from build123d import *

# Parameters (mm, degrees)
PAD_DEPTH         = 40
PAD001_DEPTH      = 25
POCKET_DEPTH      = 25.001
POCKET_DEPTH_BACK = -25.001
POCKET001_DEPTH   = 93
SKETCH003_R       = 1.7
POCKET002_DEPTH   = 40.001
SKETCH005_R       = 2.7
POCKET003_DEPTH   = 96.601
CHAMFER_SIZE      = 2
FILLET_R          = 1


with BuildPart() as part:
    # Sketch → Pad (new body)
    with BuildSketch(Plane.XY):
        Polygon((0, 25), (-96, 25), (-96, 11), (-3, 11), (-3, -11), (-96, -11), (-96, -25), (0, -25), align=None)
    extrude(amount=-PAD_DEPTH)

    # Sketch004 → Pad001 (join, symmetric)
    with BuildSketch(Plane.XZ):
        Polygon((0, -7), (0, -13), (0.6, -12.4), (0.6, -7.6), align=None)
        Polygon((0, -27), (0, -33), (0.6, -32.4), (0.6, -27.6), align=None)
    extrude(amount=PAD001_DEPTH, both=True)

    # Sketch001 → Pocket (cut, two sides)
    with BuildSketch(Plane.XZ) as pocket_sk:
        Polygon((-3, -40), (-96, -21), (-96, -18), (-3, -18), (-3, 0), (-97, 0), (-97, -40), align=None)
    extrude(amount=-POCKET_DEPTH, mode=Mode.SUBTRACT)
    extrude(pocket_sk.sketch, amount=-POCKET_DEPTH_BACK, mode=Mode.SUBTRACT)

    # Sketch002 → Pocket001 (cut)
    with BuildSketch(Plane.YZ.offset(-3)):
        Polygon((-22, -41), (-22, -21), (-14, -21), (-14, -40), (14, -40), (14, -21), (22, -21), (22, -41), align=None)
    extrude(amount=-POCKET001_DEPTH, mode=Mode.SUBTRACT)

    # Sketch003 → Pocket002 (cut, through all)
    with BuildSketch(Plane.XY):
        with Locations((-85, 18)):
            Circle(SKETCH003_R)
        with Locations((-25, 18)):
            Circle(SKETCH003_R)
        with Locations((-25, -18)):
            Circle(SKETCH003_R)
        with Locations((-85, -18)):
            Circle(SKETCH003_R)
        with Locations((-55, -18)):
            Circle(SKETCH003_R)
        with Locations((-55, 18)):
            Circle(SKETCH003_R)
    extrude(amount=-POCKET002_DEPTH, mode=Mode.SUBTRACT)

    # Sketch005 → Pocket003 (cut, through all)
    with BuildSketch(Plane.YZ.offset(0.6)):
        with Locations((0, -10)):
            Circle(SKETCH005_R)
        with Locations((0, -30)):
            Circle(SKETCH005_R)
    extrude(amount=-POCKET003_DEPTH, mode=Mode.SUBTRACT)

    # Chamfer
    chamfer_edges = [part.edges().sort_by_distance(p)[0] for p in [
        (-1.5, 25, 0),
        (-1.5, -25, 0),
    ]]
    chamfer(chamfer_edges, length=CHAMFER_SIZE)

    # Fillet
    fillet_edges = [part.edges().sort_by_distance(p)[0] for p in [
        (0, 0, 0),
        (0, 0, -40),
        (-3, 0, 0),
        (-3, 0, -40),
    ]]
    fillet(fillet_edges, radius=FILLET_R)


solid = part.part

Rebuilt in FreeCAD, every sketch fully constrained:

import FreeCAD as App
import Part
import Sketcher

V = App.Vector
Q = App.Units.Quantity


def edges_at(feature, points):
    """Names of the edges that pass closest to the given points."""
    edges = feature.Shape.Edges
    near = lambda p: min(range(len(edges)), key=lambda i: edges[i].distToShape(Part.Vertex(*p))[0])
    return sorted({f"Edge{near(p) + 1}" for p in points})

doc = App.newDocument("Part")
body = doc.addObject("PartDesign::Body", "Body")

# Sketch on XY plane
sketch1 = body.newObject("Sketcher::SketchObject", "Sketch")
sketch1.AttachmentSupport = (doc.getObject("XY_Plane"), [""])
sketch1.MapMode = "FlatFace"
sketch1.addGeometry(Part.LineSegment(V(0, 25, 0), V(-96, 25, 0)), False)
sketch1.addGeometry(Part.LineSegment(V(-96, 25, 0), V(-96, 11, 0)), False)
sketch1.addGeometry(Part.LineSegment(V(-96, 11, 0), V(-3, 11, 0)), False)
sketch1.addGeometry(Part.LineSegment(V(-3, 11, 0), V(-3, -11, 0)), False)
sketch1.addGeometry(Part.LineSegment(V(-3, -11, 0), V(-96, -11, 0)), False)
sketch1.addGeometry(Part.LineSegment(V(-96, -11, 0), V(-96, -25, 0)), False)
sketch1.addGeometry(Part.LineSegment(V(-96, -25, 0), V(0, -25, 0)), False)
sketch1.addGeometry(Part.LineSegment(V(0, -25, 0), V(0, 25, 0)), False)
sketch1.addConstraint(Sketcher.Constraint("Coincident", 0, 2, 1, 1))
sketch1.addConstraint(Sketcher.Constraint("Coincident", 1, 2, 2, 1))
sketch1.addConstraint(Sketcher.Constraint("Coincident", 2, 2, 3, 1))
sketch1.addConstraint(Sketcher.Constraint("Coincident", 3, 2, 4, 1))
sketch1.addConstraint(Sketcher.Constraint("Coincident", 4, 2, 5, 1))
sketch1.addConstraint(Sketcher.Constraint("Coincident", 5, 2, 6, 1))
sketch1.addConstraint(Sketcher.Constraint("Coincident", 6, 2, 7, 1))
sketch1.addConstraint(Sketcher.Constraint("Coincident", 7, 2, 0, 1))
sketch1.addConstraint(Sketcher.Constraint("Horizontal", 0))
sketch1.addConstraint(Sketcher.Constraint("Vertical", 1))
sketch1.addConstraint(Sketcher.Constraint("Horizontal", 2))
sketch1.addConstraint(Sketcher.Constraint("Vertical", 3))
sketch1.addConstraint(Sketcher.Constraint("Horizontal", 4))
sketch1.addConstraint(Sketcher.Constraint("Vertical", 5))
sketch1.addConstraint(Sketcher.Constraint("Horizontal", 6))
sketch1.addConstraint(Sketcher.Constraint("Vertical", 7))
sketch1.addConstraint(Sketcher.Constraint("Symmetric", 6, 2, 7, 2, -1, 1))
sketch1.addConstraint(Sketcher.Constraint("Symmetric", 1, 2, 4, 2, -1))
sketch1.addConstraint(Sketcher.Constraint("DistanceX", 0, 2, 0, 1, Q("96 mm")))
sketch1.addConstraint(Sketcher.Constraint("DistanceX", 2, 1, 2, 2, Q("93 mm")))
sketch1.addConstraint(Sketcher.Constraint("DistanceY", 1, 2, 1, 1, Q("14 mm")))
sketch1.addConstraint(Sketcher.Constraint("DistanceY", 3, 2, 3, 1, Q("22 mm")))
pad1 = body.newObject("PartDesign::Pad", "Pad")
pad1.Profile = sketch1
pad1.Length = 40
pad1.Reversed = True

# Sketch on XZ plane
sketch2 = body.newObject("Sketcher::SketchObject", "Sketch001")
sketch2.AttachmentSupport = (doc.getObject("XZ_Plane"), [""])
sketch2.MapMode = "FlatFace"
sketch2.addGeometry(Part.LineSegment(V(0, -7, 0), V(0, -13, 0)), False)
sketch2.addGeometry(Part.LineSegment(V(0, -13, 0), V(0.6, -12.4, 0)), False)
sketch2.addGeometry(Part.LineSegment(V(0.6, -12.4, 0), V(0.6, -7.6, 0)), False)
sketch2.addGeometry(Part.LineSegment(V(0.6, -7.6, 0), V(0, -7, 0)), False)
sketch2.addGeometry(Part.LineSegment(V(0, -27, 0), V(0, -33, 0)), False)
sketch2.addGeometry(Part.LineSegment(V(0, -33, 0), V(0.6, -32.4, 0)), False)
sketch2.addGeometry(Part.LineSegment(V(0.6, -32.4, 0), V(0.6, -27.6, 0)), False)
sketch2.addGeometry(Part.LineSegment(V(0.6, -27.6, 0), V(0, -27, 0)), False)
sketch2.addConstraint(Sketcher.Constraint("Coincident", 0, 2, 1, 1))
sketch2.addConstraint(Sketcher.Constraint("Coincident", 1, 2, 2, 1))
sketch2.addConstraint(Sketcher.Constraint("Coincident", 2, 2, 3, 1))
sketch2.addConstraint(Sketcher.Constraint("Coincident", 3, 2, 0, 1))
sketch2.addConstraint(Sketcher.Constraint("Coincident", 4, 2, 5, 1))
sketch2.addConstraint(Sketcher.Constraint("Coincident", 5, 2, 6, 1))
sketch2.addConstraint(Sketcher.Constraint("Coincident", 6, 2, 7, 1))
sketch2.addConstraint(Sketcher.Constraint("Coincident", 7, 2, 4, 1))
sketch2.addConstraint(Sketcher.Constraint("Vertical", 0))
sketch2.addConstraint(Sketcher.Constraint("Vertical", 2))
sketch2.addConstraint(Sketcher.Constraint("Vertical", 4))
sketch2.addConstraint(Sketcher.Constraint("Vertical", 6))
sketch2.addConstraint(Sketcher.Constraint("PointOnObject", 0, 2, -2))
sketch2.addConstraint(Sketcher.Constraint("PointOnObject", 4, 2, -2))
sketch2.addConstraint(Sketcher.Constraint("Perpendicular", 1, 3))
sketch2.addConstraint(Sketcher.Constraint("Perpendicular", 3, 5))
sketch2.addConstraint(Sketcher.Constraint("Perpendicular", 5, 7))
sketch2.addConstraint(Sketcher.Constraint("Vertical", 2, 2, 5, 2))
sketch2.addConstraint(Sketcher.Constraint("Equal", 0, 4))
sketch2.addConstraint(Sketcher.Constraint("Equal", 1, 3))
sketch2.addConstraint(Sketcher.Constraint("DistanceY", 0, 2, 0, 1, Q("6 mm")))
sketch2.addConstraint(Sketcher.Constraint("DistanceY", 2, 1, 2, 2, Q("4.8 mm")))
sketch2.addConstraint(Sketcher.Constraint("DistanceY", 0, 2, -1, 1, Q("13 mm")))
sketch2.addConstraint(Sketcher.Constraint("DistanceY", 4, 2, -1, 1, Q("33 mm")))
pad2 = body.newObject("PartDesign::Pad", "Pad001")
pad2.Profile = sketch2
pad2.Length = 50
pad2.Midplane = True

# Sketch on XZ plane
sketch3 = body.newObject("Sketcher::SketchObject", "Sketch002")
sketch3.AttachmentSupport = (doc.getObject("XZ_Plane"), [""])
sketch3.MapMode = "FlatFace"
sketch3.addGeometry(Part.LineSegment(V(-3, -40, 0), V(-96, -21, 0)), False)
sketch3.addGeometry(Part.LineSegment(V(-96, -21, 0), V(-96, -18, 0)), False)
sketch3.addGeometry(Part.LineSegment(V(-96, -18, 0), V(-3, -18, 0)), False)
sketch3.addGeometry(Part.LineSegment(V(-3, -18, 0), V(-3, 0, 0)), False)
sketch3.addGeometry(Part.LineSegment(V(-3, 0, 0), V(-97, 0, 0)), False)
sketch3.addGeometry(Part.LineSegment(V(-97, 0, 0), V(-97, -40, 0)), False)
sketch3.addGeometry(Part.LineSegment(V(-97, -40, 0), V(-3, -40, 0)), False)
sketch3.addConstraint(Sketcher.Constraint("Coincident", 0, 2, 1, 1))
sketch3.addConstraint(Sketcher.Constraint("Coincident", 1, 2, 2, 1))
sketch3.addConstraint(Sketcher.Constraint("Coincident", 2, 2, 3, 1))
sketch3.addConstraint(Sketcher.Constraint("Coincident", 3, 2, 4, 1))
sketch3.addConstraint(Sketcher.Constraint("Coincident", 4, 2, 5, 1))
sketch3.addConstraint(Sketcher.Constraint("Coincident", 5, 2, 6, 1))
sketch3.addConstraint(Sketcher.Constraint("Coincident", 6, 2, 0, 1))
sketch3.addConstraint(Sketcher.Constraint("Vertical", 1))
sketch3.addConstraint(Sketcher.Constraint("Horizontal", 2))
sketch3.addConstraint(Sketcher.Constraint("Vertical", 3))
sketch3.addConstraint(Sketcher.Constraint("Horizontal", 4))
sketch3.addConstraint(Sketcher.Constraint("Vertical", 5))
sketch3.addConstraint(Sketcher.Constraint("Horizontal", 6))
sketch3.addConstraint(Sketcher.Constraint("PointOnObject", 3, 2, -1))
sketch3.addConstraint(Sketcher.Constraint("Vertical", 3, 2, 6, 2))
sketch3.addConstraint(Sketcher.Constraint("DistanceX", 2, 1, 2, 2, Q("93 mm")))
sketch3.addConstraint(Sketcher.Constraint("DistanceX", 4, 2, 4, 1, Q("94 mm")))
sketch3.addConstraint(Sketcher.Constraint("DistanceY", 1, 1, 1, 2, Q("3 mm")))
sketch3.addConstraint(Sketcher.Constraint("DistanceY", 3, 1, 3, 2, Q("18 mm")))
sketch3.addConstraint(Sketcher.Constraint("DistanceY", 5, 2, 5, 1, Q("40 mm")))
sketch3.addConstraint(Sketcher.Constraint("DistanceX", 0, 2, -1, 1, Q("96 mm")))
pocket1 = body.newObject("PartDesign::Pocket", "Pocket")
pocket1.Profile = sketch3
pocket1.Type = "ThroughAll"
pocket1.Midplane = True

# Sketch on YZ plane
sketch4 = body.newObject("Sketcher::SketchObject", "Sketch003")
sketch4.AttachmentSupport = (doc.getObject("YZ_Plane"), [""])
sketch4.MapMode = "FlatFace"
sketch4.AttachmentOffset = App.Placement(V(0, 0, -3), App.Rotation())
sketch4.addGeometry(Part.LineSegment(V(-22, -21, 0), V(-22, -41, 0)), False)
sketch4.addGeometry(Part.LineSegment(V(-22, -41, 0), V(22, -41, 0)), False)
sketch4.addGeometry(Part.LineSegment(V(22, -41, 0), V(22, -21, 0)), False)
sketch4.addGeometry(Part.LineSegment(V(22, -21, 0), V(14, -21, 0)), False)
sketch4.addGeometry(Part.LineSegment(V(14, -21, 0), V(14, -40, 0)), False)
sketch4.addGeometry(Part.LineSegment(V(14, -40, 0), V(-14, -40, 0)), False)
sketch4.addGeometry(Part.LineSegment(V(-14, -40, 0), V(-14, -21, 0)), False)
sketch4.addGeometry(Part.LineSegment(V(-14, -21, 0), V(-22, -21, 0)), False)
sketch4.addConstraint(Sketcher.Constraint("Coincident", 0, 2, 1, 1))
sketch4.addConstraint(Sketcher.Constraint("Coincident", 1, 2, 2, 1))
sketch4.addConstraint(Sketcher.Constraint("Coincident", 2, 2, 3, 1))
sketch4.addConstraint(Sketcher.Constraint("Coincident", 3, 2, 4, 1))
sketch4.addConstraint(Sketcher.Constraint("Coincident", 4, 2, 5, 1))
sketch4.addConstraint(Sketcher.Constraint("Coincident", 5, 2, 6, 1))
sketch4.addConstraint(Sketcher.Constraint("Coincident", 6, 2, 7, 1))
sketch4.addConstraint(Sketcher.Constraint("Coincident", 7, 2, 0, 1))
sketch4.addConstraint(Sketcher.Constraint("Vertical", 0))
sketch4.addConstraint(Sketcher.Constraint("Horizontal", 1))
sketch4.addConstraint(Sketcher.Constraint("Vertical", 2))
sketch4.addConstraint(Sketcher.Constraint("Horizontal", 3))
sketch4.addConstraint(Sketcher.Constraint("Vertical", 4))
sketch4.addConstraint(Sketcher.Constraint("Horizontal", 5))
sketch4.addConstraint(Sketcher.Constraint("Vertical", 6))
sketch4.addConstraint(Sketcher.Constraint("Horizontal", 7))
sketch4.addConstraint(Sketcher.Constraint("Symmetric", 3, 2, 6, 2, -2))
sketch4.addConstraint(Sketcher.Constraint("Equal", 3, 7))
sketch4.addConstraint(Sketcher.Constraint("DistanceX", 1, 1, 1, 2, Q("44 mm")))
sketch4.addConstraint(Sketcher.Constraint("DistanceX", 3, 2, 3, 1, Q("8 mm")))
sketch4.addConstraint(Sketcher.Constraint("DistanceY", 0, 2, 0, 1, Q("20 mm")))
sketch4.addConstraint(Sketcher.Constraint("DistanceY", 4, 2, 4, 1, Q("19 mm")))
sketch4.addConstraint(Sketcher.Constraint("DistanceY", 0, 2, -1, 1, Q("41 mm")))
pocket2 = body.newObject("PartDesign::Pocket", "Pocket001")
pocket2.Profile = sketch4
pocket2.Length = 93

# Sketch on XY plane
sketch5 = body.newObject("Sketcher::SketchObject", "Sketch004")
sketch5.AttachmentSupport = (doc.getObject("XY_Plane"), [""])
sketch5.MapMode = "FlatFace"
sketch5.addGeometry(Part.Circle(V(-85, 18, 0), V(0, 0, 1), 1.7), False)
sketch5.addGeometry(Part.Circle(V(-25, 18, 0), V(0, 0, 1), 1.7), False)
sketch5.addGeometry(Part.Circle(V(-25, -18, 0), V(0, 0, 1), 1.7), False)
sketch5.addGeometry(Part.Circle(V(-85, -18, 0), V(0, 0, 1), 1.7), False)
sketch5.addGeometry(Part.Circle(V(-55, -18, 0), V(0, 0, 1), 1.7), False)
sketch5.addGeometry(Part.Circle(V(-55, 18, 0), V(0, 0, 1), 1.7), False)
sketch5.addConstraint(Sketcher.Constraint("Equal", 0, 1))
sketch5.addConstraint(Sketcher.Constraint("Equal", 1, 2))
sketch5.addConstraint(Sketcher.Constraint("Equal", 2, 3))
sketch5.addConstraint(Sketcher.Constraint("Equal", 3, 4))
sketch5.addConstraint(Sketcher.Constraint("Equal", 4, 5))
sketch5.addConstraint(Sketcher.Constraint("Symmetric", 1, 3, 2, 3, -1))
sketch5.addConstraint(Sketcher.Constraint("Symmetric", 0, 3, 3, 3, -1))
sketch5.addConstraint(Sketcher.Constraint("Symmetric", 4, 3, 5, 3, -1))
sketch5.addConstraint(Sketcher.Constraint("Horizontal", 0, 3, 1, 3))
sketch5.addConstraint(Sketcher.Constraint("Horizontal", 3, 3, 4, 3))
sketch5.addConstraint(Sketcher.Constraint("Diameter", 0, Q("3.4 mm")))
sketch5.addConstraint(Sketcher.Constraint("DistanceX", 0, 3, -1, 1, Q("85 mm")))
sketch5.addConstraint(Sketcher.Constraint("DistanceY", -1, 1, 0, 3, Q("18 mm")))
sketch5.addConstraint(Sketcher.Constraint("DistanceX", 1, 3, -1, 1, Q("25 mm")))
sketch5.addConstraint(Sketcher.Constraint("DistanceX", 4, 3, -1, 1, Q("55 mm")))
pocket3 = body.newObject("PartDesign::Pocket", "Pocket002")
pocket3.Profile = sketch5
pocket3.Type = "ThroughAll"

# Sketch on YZ plane
sketch6 = body.newObject("Sketcher::SketchObject", "Sketch005")
sketch6.AttachmentSupport = (doc.getObject("YZ_Plane"), [""])
sketch6.MapMode = "FlatFace"
sketch6.AttachmentOffset = App.Placement(V(0, 0, 0.6), App.Rotation())
sketch6.addGeometry(Part.Circle(V(0, -10, 0), V(0, 0, 1), 2.7), False)
sketch6.addGeometry(Part.Circle(V(0, -30, 0), V(0, 0, 1), 2.7), False)
sketch6.addConstraint(Sketcher.Constraint("Equal", 0, 1))
sketch6.addConstraint(Sketcher.Constraint("PointOnObject", 0, 3, -2))
sketch6.addConstraint(Sketcher.Constraint("PointOnObject", 1, 3, -2))
sketch6.addConstraint(Sketcher.Constraint("Diameter", 0, Q("5.4 mm")))
sketch6.addConstraint(Sketcher.Constraint("DistanceY", 0, 3, -1, 1, Q("10 mm")))
sketch6.addConstraint(Sketcher.Constraint("DistanceY", 1, 3, -1, 1, Q("30 mm")))
pocket4 = body.newObject("PartDesign::Pocket", "Pocket003")
pocket4.Profile = sketch6
pocket4.Type = "ThroughAll"
doc.recompute()

chamfer = body.newObject("PartDesign::Chamfer", "Chamfer")
chamfer.Base = (pocket4, edges_at(pocket4, [(-1.5, 25, 0), (-1.5, -25, 0)]))
chamfer.Size = 2
doc.recompute()

fillet = body.newObject("PartDesign::Fillet", "Fillet")
fillet.Base = (chamfer, edges_at(chamfer, [
    (0, 0, 0),
    (0, 0, -40),
    (-3, 0, 0),
    (-3, 0, -40),
]))
fillet.Radius = 1

doc.recompute()
